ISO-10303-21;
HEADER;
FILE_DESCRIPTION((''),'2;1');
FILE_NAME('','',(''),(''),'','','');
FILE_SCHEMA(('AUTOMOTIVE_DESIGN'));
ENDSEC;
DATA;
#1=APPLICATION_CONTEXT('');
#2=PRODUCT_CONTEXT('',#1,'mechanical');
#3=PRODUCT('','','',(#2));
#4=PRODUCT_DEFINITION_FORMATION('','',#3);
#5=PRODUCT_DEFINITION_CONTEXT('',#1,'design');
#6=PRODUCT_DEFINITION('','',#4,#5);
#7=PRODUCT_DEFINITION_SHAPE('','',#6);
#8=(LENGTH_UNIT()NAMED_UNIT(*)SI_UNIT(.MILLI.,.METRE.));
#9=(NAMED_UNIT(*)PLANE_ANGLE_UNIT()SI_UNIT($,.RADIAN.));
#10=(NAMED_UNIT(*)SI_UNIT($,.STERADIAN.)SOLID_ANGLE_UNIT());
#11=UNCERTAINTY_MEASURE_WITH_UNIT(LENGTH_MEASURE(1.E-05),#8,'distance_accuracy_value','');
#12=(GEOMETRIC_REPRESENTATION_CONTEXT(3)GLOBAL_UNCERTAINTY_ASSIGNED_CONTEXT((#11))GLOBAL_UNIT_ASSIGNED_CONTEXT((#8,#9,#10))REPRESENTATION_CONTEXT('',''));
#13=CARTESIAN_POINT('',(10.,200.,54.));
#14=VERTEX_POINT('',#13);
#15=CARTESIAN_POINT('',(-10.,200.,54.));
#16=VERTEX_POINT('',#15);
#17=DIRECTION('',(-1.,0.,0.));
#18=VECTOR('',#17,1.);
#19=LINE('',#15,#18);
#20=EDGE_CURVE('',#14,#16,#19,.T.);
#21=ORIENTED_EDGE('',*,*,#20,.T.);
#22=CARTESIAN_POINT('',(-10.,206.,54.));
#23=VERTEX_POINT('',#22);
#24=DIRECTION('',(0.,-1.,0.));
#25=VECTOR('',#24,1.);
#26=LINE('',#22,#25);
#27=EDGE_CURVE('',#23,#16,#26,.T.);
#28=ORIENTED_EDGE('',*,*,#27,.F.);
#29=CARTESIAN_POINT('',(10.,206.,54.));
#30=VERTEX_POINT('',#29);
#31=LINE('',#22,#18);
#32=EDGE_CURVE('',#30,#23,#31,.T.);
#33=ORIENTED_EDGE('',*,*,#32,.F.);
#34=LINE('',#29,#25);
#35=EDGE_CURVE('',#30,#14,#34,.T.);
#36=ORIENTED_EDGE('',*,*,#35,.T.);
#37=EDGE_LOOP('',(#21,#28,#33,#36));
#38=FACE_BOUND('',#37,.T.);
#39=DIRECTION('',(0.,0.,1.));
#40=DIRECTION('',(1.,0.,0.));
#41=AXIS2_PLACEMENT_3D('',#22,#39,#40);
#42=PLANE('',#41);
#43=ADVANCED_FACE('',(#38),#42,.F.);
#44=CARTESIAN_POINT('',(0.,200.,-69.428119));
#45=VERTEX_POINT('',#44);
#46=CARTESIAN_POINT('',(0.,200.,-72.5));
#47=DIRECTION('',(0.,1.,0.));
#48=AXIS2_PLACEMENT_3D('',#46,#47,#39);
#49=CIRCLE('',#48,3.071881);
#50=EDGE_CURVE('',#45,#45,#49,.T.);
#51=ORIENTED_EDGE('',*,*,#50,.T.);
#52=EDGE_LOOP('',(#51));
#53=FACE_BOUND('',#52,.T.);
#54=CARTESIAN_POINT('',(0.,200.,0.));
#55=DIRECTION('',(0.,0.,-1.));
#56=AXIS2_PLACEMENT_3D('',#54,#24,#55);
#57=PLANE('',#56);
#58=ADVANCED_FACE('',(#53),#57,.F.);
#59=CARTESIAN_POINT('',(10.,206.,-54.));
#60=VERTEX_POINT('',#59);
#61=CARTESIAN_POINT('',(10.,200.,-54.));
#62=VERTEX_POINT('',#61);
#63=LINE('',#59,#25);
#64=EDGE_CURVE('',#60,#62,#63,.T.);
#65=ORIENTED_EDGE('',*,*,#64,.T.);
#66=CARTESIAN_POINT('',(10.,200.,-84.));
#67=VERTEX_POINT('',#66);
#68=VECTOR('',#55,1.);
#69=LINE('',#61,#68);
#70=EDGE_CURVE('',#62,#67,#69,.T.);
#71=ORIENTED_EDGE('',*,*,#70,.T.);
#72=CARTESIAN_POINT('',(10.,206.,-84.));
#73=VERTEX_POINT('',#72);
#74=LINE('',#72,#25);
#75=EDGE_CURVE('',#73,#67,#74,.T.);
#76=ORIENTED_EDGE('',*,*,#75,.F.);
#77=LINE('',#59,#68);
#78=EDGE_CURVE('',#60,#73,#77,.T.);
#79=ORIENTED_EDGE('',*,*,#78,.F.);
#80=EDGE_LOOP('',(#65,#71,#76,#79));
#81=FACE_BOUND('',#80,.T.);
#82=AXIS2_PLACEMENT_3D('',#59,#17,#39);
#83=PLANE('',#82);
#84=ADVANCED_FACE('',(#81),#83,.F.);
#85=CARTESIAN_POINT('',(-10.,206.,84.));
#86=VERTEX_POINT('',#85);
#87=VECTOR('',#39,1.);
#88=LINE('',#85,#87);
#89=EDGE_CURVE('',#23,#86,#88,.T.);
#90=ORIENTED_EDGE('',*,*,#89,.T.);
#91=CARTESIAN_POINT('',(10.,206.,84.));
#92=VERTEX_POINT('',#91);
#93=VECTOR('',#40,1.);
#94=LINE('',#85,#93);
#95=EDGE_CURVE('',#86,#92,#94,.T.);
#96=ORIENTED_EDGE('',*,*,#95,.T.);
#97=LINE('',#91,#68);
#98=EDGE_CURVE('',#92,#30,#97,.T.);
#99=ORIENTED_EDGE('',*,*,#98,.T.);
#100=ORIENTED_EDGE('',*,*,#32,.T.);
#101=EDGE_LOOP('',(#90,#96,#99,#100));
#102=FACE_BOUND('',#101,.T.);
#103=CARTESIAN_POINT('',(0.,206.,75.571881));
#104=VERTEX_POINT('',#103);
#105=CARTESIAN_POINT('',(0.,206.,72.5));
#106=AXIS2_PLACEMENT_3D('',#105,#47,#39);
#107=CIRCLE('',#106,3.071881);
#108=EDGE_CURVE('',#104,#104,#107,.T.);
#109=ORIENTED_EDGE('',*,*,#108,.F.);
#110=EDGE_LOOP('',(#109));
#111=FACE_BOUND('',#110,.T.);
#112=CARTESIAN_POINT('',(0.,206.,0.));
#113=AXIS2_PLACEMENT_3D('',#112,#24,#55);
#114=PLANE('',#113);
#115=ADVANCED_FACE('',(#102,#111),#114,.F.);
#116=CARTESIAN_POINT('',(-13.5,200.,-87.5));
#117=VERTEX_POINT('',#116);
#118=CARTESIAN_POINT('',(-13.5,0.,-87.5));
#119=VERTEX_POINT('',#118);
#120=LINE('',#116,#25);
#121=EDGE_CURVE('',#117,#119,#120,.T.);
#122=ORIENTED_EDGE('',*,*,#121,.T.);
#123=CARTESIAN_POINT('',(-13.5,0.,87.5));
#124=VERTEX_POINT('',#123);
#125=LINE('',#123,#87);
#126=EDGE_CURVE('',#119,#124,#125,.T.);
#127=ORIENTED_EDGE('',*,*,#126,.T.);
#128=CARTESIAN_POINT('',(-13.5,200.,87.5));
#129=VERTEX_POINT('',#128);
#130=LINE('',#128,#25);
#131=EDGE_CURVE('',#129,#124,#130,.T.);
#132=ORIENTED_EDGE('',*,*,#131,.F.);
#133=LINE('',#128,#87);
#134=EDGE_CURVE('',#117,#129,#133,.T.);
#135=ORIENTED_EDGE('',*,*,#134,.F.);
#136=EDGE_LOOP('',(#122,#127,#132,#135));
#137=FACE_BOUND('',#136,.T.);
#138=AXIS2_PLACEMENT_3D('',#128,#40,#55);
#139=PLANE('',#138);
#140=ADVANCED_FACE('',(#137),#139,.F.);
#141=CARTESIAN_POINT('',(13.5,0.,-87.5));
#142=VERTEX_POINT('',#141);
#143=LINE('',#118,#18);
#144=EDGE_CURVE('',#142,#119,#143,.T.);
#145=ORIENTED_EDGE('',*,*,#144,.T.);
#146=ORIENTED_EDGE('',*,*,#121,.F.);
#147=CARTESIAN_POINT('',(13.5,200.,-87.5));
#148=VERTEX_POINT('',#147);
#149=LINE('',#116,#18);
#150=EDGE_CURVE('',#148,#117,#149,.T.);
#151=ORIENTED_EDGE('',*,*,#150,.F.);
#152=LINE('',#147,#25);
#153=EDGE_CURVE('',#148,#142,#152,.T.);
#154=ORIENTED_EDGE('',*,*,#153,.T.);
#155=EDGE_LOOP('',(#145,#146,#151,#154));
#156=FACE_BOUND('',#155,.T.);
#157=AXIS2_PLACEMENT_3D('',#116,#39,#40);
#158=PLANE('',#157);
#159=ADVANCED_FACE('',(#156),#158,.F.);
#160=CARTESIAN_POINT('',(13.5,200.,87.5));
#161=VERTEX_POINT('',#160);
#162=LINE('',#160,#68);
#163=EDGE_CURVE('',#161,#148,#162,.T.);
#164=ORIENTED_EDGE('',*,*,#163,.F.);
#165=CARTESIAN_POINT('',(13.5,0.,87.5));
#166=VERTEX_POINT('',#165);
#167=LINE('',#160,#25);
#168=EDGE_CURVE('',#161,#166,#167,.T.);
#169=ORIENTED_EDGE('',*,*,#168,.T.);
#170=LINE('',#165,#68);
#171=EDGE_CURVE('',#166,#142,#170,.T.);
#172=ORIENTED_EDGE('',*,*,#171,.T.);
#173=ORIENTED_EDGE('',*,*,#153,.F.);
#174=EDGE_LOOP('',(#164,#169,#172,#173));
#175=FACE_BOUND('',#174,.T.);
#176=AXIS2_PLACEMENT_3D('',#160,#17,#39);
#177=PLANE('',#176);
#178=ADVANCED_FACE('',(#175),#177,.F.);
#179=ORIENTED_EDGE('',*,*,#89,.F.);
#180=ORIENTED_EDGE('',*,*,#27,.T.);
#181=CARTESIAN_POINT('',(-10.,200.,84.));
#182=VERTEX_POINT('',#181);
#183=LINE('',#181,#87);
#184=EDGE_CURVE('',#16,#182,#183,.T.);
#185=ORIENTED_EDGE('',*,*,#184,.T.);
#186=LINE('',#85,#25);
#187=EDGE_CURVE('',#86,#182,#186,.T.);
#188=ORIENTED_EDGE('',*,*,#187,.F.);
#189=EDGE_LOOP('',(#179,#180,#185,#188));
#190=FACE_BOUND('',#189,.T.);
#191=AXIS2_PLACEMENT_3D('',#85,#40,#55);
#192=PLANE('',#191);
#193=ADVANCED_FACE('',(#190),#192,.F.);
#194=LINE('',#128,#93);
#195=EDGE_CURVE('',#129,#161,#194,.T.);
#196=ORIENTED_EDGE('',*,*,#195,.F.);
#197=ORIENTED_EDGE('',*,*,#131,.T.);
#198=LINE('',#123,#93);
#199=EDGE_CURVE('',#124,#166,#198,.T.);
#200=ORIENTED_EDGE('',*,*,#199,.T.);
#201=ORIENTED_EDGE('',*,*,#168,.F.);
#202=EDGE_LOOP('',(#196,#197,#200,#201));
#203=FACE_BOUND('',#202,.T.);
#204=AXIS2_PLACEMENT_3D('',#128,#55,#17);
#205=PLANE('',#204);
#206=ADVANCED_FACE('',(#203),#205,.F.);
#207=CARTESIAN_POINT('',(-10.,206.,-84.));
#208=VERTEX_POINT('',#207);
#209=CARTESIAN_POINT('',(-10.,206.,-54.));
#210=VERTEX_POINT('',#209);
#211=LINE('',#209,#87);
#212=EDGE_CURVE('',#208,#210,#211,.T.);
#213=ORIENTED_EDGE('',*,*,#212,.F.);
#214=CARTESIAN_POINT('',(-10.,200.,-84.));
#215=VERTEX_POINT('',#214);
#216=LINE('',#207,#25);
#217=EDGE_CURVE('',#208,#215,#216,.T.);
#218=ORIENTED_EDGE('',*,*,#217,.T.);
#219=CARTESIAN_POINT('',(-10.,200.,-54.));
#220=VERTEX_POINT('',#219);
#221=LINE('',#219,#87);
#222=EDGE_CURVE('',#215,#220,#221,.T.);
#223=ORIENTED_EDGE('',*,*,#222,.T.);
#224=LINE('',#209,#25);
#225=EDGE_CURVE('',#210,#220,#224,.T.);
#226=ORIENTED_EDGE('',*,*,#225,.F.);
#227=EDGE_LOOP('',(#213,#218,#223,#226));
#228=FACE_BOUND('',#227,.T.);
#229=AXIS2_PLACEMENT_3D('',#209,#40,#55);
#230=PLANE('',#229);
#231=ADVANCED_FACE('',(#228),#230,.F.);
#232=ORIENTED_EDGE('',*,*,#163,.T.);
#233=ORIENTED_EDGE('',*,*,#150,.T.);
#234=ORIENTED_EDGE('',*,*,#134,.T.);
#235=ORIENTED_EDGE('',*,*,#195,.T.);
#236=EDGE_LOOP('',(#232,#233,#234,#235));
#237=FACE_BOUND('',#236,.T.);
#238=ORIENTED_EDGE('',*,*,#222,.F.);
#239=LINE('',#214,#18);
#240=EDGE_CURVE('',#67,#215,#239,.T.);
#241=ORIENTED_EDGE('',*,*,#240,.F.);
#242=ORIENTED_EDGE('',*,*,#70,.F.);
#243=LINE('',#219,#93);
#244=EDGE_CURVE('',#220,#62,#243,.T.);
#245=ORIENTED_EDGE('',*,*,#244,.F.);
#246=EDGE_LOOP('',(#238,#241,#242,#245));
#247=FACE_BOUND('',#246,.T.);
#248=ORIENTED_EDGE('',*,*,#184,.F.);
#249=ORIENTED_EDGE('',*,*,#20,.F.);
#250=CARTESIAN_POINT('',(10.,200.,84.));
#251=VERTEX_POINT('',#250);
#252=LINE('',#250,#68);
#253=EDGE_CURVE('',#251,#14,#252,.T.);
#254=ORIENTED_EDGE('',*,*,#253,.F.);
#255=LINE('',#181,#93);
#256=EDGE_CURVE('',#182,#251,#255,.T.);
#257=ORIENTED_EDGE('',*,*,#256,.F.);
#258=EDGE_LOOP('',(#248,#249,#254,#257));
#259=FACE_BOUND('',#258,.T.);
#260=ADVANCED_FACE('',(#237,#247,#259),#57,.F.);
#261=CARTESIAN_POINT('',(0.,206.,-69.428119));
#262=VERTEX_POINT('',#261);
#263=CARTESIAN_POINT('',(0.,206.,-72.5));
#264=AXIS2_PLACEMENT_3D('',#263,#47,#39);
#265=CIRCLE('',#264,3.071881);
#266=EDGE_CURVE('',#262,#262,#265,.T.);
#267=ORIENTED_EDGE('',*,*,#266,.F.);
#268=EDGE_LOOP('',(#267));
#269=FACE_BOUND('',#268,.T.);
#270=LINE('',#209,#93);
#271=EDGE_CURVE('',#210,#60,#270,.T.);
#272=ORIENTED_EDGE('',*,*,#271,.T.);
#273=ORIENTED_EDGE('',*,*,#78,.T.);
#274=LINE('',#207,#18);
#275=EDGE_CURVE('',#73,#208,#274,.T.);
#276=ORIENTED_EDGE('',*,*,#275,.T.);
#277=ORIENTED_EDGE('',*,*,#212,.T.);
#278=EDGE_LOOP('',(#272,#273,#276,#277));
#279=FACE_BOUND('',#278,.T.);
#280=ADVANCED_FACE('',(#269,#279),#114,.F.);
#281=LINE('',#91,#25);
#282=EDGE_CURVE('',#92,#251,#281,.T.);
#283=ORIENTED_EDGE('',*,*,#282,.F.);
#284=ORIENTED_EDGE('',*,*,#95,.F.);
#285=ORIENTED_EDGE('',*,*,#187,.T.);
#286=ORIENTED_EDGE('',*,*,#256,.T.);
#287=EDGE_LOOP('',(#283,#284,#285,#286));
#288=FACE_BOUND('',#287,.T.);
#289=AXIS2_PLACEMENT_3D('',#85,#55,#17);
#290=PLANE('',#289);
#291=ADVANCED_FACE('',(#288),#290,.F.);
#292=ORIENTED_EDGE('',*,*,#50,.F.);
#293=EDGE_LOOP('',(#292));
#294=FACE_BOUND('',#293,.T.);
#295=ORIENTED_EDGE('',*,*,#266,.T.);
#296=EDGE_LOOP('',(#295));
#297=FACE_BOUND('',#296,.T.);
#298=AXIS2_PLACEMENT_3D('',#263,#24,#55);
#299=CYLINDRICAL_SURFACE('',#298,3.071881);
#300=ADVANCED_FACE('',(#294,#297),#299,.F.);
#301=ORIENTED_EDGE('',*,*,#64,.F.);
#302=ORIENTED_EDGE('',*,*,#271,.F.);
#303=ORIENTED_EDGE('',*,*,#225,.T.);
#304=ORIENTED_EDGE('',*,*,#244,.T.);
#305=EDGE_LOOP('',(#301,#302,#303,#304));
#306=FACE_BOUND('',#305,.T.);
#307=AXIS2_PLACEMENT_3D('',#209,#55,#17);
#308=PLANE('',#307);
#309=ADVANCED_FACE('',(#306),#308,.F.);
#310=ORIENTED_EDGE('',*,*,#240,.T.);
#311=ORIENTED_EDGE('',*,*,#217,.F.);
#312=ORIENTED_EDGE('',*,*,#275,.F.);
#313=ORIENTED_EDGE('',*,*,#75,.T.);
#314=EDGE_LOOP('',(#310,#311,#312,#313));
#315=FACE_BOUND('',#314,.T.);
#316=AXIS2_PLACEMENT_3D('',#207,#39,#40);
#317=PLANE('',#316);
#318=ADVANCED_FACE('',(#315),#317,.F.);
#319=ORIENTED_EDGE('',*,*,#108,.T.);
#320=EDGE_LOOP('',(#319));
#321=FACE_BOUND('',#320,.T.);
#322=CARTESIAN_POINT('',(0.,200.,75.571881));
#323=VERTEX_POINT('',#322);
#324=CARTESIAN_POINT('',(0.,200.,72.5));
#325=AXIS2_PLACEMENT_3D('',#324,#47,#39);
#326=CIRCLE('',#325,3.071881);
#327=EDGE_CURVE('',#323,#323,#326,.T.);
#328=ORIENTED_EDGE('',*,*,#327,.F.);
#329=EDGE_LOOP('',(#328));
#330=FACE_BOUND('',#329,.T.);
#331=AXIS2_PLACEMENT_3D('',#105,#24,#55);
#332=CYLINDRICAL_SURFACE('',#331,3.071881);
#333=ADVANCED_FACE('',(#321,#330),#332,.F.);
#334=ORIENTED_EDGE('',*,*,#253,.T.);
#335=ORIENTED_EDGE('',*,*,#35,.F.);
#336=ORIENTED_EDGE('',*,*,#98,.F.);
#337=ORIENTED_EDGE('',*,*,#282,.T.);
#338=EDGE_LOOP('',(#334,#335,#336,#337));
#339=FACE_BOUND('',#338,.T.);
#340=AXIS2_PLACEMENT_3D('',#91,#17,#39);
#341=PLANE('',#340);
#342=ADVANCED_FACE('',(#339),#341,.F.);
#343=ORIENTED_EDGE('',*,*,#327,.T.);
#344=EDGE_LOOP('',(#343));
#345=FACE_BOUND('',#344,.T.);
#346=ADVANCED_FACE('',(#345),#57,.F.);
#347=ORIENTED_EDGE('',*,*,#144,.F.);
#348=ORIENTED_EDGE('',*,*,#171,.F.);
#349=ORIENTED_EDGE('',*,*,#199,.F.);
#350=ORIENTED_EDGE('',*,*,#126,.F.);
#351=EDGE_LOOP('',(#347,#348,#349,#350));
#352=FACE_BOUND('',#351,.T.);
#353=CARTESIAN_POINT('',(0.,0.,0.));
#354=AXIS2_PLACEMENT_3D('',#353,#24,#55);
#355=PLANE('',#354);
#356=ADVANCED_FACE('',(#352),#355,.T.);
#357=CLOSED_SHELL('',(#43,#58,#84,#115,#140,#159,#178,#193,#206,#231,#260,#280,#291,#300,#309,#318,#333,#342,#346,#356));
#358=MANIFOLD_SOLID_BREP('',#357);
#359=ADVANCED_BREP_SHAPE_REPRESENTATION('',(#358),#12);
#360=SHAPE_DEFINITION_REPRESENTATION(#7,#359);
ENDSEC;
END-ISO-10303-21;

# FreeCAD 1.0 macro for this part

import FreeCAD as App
import Part
import Sketcher
Q = App.Units.Quantity


def add_polygon(sketch, points):
    """Adds a closed chain of lines whose ends are joined by coincident constraints."""
    first, n = sketch.GeometryCount, len(points)
    for a, b in zip(points, points[1:] + points[:1]):
        sketch.addGeometry(Part.LineSegment(App.Vector(*a, 0), App.Vector(*b, 0)), False)
    for i in range(n):
        sketch.addConstraint(Sketcher.Constraint("Coincident", first + i, 2, first + (i + 1) % n, 1))

doc = App.newDocument("Part")
body = doc.addObject("PartDesign::Body", "Body")

sketch1 = body.newObject("Sketcher::SketchObject", "Sketch")
sketch1.AttachmentSupport = (doc.getObject("XZ_Plane"), [""])
sketch1.MapMode = "FlatFace"
add_polygon(sketch1, [(-14, -88), (-14, 88), (14, 88), (14, -88)])
sketch1.addConstraint([
    Sketcher.Constraint("Vertical", 0),
    Sketcher.Constraint("Horizontal", 1),
    Sketcher.Constraint("Vertical", 2),
    Sketcher.Constraint("Horizontal", 3),
    Sketcher.Constraint("Symmetric", 0, 2, 2, 2, -1, 1),
    Sketcher.Constraint("DistanceX", 1, 1, 1, 2, Q("27 mm")),
    Sketcher.Constraint("DistanceY", 0, 1, 0, 2, Q("175 mm")),
])
pad1 = body.newObject("PartDesign::Pad", "Pad")
pad1.Profile = sketch1
pad1.Length = 200
pad1.Reversed = True

sketch2 = body.newObject("Sketcher::SketchObject", "Sketch001")
sketch2.AttachmentSupport = (doc.getObject("XZ_Plane"), [""])
sketch2.MapMode = "FlatFace"
sketch2.AttachmentOffset = App.Placement(App.Vector(0, 0, -200), App.Rotation())
add_polygon(sketch2, [(-10, 54), (-10, 84), (10, 84), (10, 54)])
sketch2.addGeometry(Part.Circle(App.Vector(0, 72.5, 0), App.Vector(0, 0, 1), 3.1), False)
add_polygon(sketch2, [(-10, -84), (-10, -54), (10, -54), (10, -84)])
sketch2.addGeometry(Part.Circle(App.Vector(0, -72.5, 0), App.Vector(0, 0, 1), 3.1), False)
sketch2.addConstraint([
    Sketcher.Constraint("Vertical", 0),
    Sketcher.Constraint("Horizontal", 1),
    Sketcher.Constraint("Vertical", 2),
    Sketcher.Constraint("Horizontal", 3),
    Sketcher.Constraint("Vertical", 5),
    Sketcher.Constraint("Horizontal", 6),
    Sketcher.Constraint("Vertical", 7),
    Sketcher.Constraint("Horizontal", 8),
    Sketcher.Constraint("Equal", 4, 9),
    Sketcher.Constraint("Symmetric", 4, 3, 9, 3, -1, 1),
    Sketcher.Constraint("Symmetric", 2, 2, 5, 2, -1, 1),
    Sketcher.Constraint("Symmetric", 0, 2, 7, 2, -1, 1),
    Sketcher.Constraint("PointOnObject", 4, 3, -2),
    Sketcher.Constraint("Vertical", 3, 2, 5, 2),
    Sketcher.Constraint("DistanceX", 1, 1, 1, 2, Q("20 mm")),
    Sketcher.Constraint("DistanceY", 0, 1, 0, 2, Q("30 mm")),
    Sketcher.Constraint("DistanceY", -1, 1, 0, 2, Q("84 mm")),
    Sketcher.Constraint("DistanceY", 9, 3, 4, 3, Q("145 mm")),
    Sketcher.Constraint("Diameter", 4, Q("6.143762 mm")),
])
pad2 = body.newObject("PartDesign::Pad", "Pad001")
pad2.Profile = sketch2
pad2.Length = 6
pad2.Reversed = True

doc.recompute()
